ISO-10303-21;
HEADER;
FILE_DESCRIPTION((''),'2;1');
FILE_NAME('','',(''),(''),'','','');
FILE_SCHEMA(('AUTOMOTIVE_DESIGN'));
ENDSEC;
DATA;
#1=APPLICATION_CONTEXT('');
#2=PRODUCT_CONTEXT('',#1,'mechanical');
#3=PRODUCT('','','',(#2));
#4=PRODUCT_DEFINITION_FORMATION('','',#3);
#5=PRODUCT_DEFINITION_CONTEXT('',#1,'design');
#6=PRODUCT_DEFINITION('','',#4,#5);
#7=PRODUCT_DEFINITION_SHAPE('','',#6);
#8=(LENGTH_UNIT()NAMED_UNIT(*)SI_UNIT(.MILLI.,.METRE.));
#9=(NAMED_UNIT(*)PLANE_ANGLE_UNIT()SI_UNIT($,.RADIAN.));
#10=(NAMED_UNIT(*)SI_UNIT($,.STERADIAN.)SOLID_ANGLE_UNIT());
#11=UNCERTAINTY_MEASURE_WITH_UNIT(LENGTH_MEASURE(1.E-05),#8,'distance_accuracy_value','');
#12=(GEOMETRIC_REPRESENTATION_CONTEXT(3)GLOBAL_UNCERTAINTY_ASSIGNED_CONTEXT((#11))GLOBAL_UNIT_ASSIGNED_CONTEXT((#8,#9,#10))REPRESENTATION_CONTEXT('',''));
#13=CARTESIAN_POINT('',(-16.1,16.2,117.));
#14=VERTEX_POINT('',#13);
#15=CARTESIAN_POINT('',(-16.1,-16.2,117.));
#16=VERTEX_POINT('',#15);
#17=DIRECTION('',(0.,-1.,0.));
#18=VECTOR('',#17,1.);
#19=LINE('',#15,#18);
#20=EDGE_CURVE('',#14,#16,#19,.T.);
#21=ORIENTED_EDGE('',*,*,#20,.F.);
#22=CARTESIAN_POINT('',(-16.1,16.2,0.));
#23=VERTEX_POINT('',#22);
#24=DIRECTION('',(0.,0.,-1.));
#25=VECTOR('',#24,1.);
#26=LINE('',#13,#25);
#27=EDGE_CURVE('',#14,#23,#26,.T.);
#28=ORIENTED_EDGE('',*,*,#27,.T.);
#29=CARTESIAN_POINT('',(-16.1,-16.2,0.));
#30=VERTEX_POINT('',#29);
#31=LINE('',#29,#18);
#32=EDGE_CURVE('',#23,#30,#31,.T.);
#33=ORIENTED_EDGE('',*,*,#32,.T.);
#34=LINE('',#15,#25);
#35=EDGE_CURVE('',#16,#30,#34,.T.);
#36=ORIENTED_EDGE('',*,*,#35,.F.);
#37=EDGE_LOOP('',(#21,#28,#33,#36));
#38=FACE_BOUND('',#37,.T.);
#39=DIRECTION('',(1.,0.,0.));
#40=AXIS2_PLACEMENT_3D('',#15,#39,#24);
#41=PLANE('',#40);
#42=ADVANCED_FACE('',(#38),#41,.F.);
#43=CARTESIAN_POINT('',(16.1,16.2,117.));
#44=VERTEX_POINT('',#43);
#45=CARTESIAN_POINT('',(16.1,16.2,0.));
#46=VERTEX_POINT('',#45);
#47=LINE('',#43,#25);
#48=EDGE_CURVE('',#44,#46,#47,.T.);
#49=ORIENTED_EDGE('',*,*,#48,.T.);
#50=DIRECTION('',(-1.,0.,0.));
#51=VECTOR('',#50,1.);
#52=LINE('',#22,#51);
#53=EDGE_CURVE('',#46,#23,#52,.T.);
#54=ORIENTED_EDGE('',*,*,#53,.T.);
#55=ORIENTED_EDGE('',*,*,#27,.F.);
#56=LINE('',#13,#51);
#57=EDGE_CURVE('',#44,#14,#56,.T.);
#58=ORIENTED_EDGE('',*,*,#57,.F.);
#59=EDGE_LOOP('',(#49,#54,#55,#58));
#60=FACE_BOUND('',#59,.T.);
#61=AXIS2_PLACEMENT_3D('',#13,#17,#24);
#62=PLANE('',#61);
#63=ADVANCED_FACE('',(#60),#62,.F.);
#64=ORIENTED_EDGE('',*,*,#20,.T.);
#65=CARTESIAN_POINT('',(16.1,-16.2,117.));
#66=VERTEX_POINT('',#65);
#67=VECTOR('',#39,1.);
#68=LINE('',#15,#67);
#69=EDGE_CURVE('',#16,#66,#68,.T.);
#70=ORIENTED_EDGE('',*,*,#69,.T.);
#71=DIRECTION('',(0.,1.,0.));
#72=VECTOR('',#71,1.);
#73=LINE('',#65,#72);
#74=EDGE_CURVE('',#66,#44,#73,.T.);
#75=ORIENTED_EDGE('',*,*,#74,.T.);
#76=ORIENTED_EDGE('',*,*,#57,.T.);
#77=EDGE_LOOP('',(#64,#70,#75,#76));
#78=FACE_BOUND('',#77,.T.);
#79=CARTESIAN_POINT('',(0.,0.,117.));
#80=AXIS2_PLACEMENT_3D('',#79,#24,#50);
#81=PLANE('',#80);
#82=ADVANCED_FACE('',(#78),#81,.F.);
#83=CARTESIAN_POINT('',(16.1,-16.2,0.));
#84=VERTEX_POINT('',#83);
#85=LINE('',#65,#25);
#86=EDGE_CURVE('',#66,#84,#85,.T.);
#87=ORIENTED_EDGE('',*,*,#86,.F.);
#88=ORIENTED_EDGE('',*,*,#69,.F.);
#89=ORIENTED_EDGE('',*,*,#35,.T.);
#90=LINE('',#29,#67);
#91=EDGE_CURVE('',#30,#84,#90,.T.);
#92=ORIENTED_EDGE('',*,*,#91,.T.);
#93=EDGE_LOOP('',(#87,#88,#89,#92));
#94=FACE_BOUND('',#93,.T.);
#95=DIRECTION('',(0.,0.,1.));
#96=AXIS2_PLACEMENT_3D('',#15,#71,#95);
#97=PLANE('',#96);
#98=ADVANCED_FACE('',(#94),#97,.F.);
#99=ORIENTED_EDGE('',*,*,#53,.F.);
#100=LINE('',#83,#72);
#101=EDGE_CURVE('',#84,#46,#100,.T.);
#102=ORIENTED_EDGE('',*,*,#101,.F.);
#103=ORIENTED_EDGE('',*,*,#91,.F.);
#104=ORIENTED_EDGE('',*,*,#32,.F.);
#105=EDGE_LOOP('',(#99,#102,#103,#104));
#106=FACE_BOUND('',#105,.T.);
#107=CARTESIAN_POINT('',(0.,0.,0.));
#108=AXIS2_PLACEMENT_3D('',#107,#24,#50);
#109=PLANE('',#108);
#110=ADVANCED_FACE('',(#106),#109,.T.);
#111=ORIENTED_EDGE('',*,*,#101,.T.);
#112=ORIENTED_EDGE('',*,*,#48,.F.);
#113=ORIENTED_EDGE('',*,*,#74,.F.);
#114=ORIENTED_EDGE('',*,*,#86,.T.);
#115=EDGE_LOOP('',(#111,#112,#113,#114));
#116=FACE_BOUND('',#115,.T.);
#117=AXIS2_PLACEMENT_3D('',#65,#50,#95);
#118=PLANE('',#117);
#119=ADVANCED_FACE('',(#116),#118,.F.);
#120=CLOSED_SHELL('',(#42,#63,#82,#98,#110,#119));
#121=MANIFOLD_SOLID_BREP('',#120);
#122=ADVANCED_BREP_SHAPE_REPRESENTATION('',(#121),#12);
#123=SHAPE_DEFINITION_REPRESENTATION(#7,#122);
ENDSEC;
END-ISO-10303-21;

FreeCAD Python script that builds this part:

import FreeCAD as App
import Part
import Sketcher

V = App.Vector
Q = App.Units.Quantity


def add_polygon(sketch, points):
    """Adds a closed chain of lines whose ends are joined by coincident constraints."""
    first, n = sketch.GeometryCount, len(points)
    for a, b in zip(points, points[1:] + points[:1]):
        sketch.addGeometry(Part.LineSegment(App.Vector(*a, 0), App.Vector(*b, 0)), False)
    for i in range(n):
        sketch.addConstraint(Sketcher.Constraint("Coincident", first + i, 2, first + (i + 1) % n, 1))

doc = App.newDocument("Part")
params = doc.addObject("Spreadsheet::Sheet", "Params")
for row, (alias, value) in enumerate([
    ("sketch1_width", "32.2 mm"),
    ("sketch1_height", "32.4 mm"),
    ("pad1_length", "117 mm"),
], start=1):
    params.set(f"A{row}", alias)
    params.set(f"B{row}", "=" + value)
    params.setAlias(f"B{row}", alias)

body = doc.addObject("PartDesign::Body", "Body")

sketch1 = doc.addObject("Sketcher::SketchObject", "Sketch")
body.addObject(sketch1)
sketch1.AttachmentSupport = (doc.XY_Plane, [""])
sketch1.MapMode = "FlatFace"
add_polygon(sketch1, [(-16, 16), (-16, -16), (16, -16), (16, 16)])
sketch1.addConstraint([
    Sketcher.Constraint("Vertical", 0),
    Sketcher.Constraint("Horizontal", 1),
    Sketcher.Constraint("Vertical", 2),
    Sketcher.Constraint("Horizontal", 3),
    Sketcher.Constraint("Symmetric", 0, 2, 2, 2, -1, 1),
    Sketcher.Constraint("DistanceX", 1, 1, 1, 2, Q("32.2 mm")),
    Sketcher.Constraint("DistanceY", 0, 2, 0, 1, Q("32.4 mm")),
])
sketch1.setExpression("Constraints[9]", "Params.sketch1_width")
sketch1.setExpression("Constraints[10]", "Params.sketch1_height")
pad1 = doc.addObject("PartDesign::Pad", "Pad")
body.addObject(pad1)
pad1.Profile = sketch1
pad1.setExpression("Length", "Params.pad1_length")

doc.recompute()
